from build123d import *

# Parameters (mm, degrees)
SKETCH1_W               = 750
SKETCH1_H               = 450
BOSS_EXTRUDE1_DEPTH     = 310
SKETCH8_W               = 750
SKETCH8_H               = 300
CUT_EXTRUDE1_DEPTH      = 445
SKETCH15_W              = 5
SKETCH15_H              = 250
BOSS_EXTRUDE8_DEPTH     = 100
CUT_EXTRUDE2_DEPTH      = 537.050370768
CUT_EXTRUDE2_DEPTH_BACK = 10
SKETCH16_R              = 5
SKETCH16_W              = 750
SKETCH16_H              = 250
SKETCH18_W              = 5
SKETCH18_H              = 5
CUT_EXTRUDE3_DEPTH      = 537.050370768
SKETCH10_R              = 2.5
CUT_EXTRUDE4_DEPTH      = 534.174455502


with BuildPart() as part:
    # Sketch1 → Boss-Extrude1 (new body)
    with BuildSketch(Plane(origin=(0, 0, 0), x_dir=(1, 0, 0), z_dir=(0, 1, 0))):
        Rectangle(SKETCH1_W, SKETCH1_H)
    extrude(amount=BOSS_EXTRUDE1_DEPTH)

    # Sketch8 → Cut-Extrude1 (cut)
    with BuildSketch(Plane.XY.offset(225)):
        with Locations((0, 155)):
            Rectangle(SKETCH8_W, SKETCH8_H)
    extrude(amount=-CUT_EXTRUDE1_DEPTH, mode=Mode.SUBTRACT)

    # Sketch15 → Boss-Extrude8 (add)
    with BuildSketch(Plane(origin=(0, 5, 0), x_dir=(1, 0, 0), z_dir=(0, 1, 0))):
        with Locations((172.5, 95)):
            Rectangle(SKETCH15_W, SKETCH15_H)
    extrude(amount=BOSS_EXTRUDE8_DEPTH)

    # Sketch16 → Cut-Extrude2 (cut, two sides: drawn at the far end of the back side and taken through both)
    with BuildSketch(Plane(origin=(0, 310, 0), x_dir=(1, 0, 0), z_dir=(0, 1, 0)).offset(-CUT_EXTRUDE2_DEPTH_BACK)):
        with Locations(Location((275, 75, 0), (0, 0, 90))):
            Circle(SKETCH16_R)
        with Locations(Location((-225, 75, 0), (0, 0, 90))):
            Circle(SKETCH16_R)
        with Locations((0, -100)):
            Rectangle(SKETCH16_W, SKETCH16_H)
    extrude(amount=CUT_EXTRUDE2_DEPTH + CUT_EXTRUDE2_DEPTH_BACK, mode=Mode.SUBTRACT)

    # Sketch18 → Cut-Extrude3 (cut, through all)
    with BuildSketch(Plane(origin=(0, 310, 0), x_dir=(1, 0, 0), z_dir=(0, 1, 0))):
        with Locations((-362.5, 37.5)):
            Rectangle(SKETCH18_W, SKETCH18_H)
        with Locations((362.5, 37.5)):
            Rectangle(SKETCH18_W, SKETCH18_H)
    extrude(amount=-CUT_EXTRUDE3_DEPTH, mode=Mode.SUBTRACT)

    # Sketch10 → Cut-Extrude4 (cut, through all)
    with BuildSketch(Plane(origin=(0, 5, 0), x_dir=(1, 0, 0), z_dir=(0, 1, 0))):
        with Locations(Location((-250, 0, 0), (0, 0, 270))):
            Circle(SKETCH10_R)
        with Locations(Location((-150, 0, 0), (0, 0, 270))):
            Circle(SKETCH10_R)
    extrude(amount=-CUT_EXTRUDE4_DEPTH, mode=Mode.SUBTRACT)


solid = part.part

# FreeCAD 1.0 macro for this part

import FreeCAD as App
import Part
import Sketcher
from FreeCAD import Vector

doc = App.newDocument("Part")
body = doc.addObject("PartDesign::Body", "Body")

# Sketch on XZ plane
sketch1 = body.newObject("Sketcher::SketchObject", "Sketch")
sketch1.AttachmentSupport = (doc.getObject("XZ_Plane"), [""])
sketch1.MapMode = "FlatFace"
sketch1.addGeometry(Part.LineSegment(Vector(-375, -225, 0), Vector(-375, 225, 0)), False)
sketch1.addGeometry(Part.LineSegment(Vector(-375, 225, 0), Vector(375, 225, 0)), False)
sketch1.addGeometry(Part.LineSegment(Vector(375, 225, 0), Vector(375, -225, 0)), False)
sketch1.addGeometry(Part.LineSegment(Vector(375, -225, 0), Vector(-375, -225, 0)), False)
sketch1.addConstraint(Sketcher.Constraint("Coincident", 0, 2, 1, 1))
sketch1.addConstraint(Sketcher.Constraint("Coincident", 1, 2, 2, 1))
sketch1.addConstraint(Sketcher.Constraint("Coincident", 2, 2, 3, 1))
sketch1.addConstraint(Sketcher.Constraint("Coincident", 3, 2, 0, 1))
sketch1.addConstraint(Sketcher.Constraint("Vertical", 0))
sketch1.addConstraint(Sketcher.Constraint("Horizontal", 1))
sketch1.addConstraint(Sketcher.Constraint("Vertical", 2))
sketch1.addConstraint(Sketcher.Constraint("Horizontal", 3))
sketch1.addConstraint(Sketcher.Constraint("Symmetric", 0, 2, 2, 2, -1, 1))
sketch1.addConstraint(Sketcher.Constraint("DistanceX", 1, 1, 1, 2, 750.0))
sketch1.addConstraint(Sketcher.Constraint("DistanceY", 0, 1, 0, 2, 450.0))
pad1 = body.newObject("PartDesign::Pad", "Pad")
pad1.Profile = sketch1
pad1.Length = 310
pad1.Reversed = True

# Sketch on XY plane
sketch2 = body.newObject("Sketcher::SketchObject", "Sketch001")
sketch2.AttachmentSupport = (doc.getObject("XY_Plane"), [""])
sketch2.MapMode = "FlatFace"
sketch2.AttachmentOffset = App.Placement(Vector(0, 0, 225), App.Rotation())
sketch2.addGeometry(Part.LineSegment(Vector(-375, 305, 0), Vector(-375, 5, 0)), False)
sketch2.addGeometry(Part.LineSegment(Vector(-375, 5, 0), Vector(375, 5, 0)), False)
sketch2.addGeometry(Part.LineSegment(Vector(375, 5, 0), Vector(375, 305, 0)), False)
sketch2.addGeometry(Part.LineSegment(Vector(375, 305, 0), Vector(-375, 305, 0)), False)
sketch2.addConstraint(Sketcher.Constraint("Coincident", 0, 2, 1, 1))
sketch2.addConstraint(Sketcher.Constraint("Coincident", 1, 2, 2, 1))
sketch2.addConstraint(Sketcher.Constraint("Coincident", 2, 2, 3, 1))
sketch2.addConstraint(Sketcher.Constraint("Coincident", 3, 2, 0, 1))
sketch2.addConstraint(Sketcher.Constraint("Vertical", 0))
sketch2.addConstraint(Sketcher.Constraint("Horizontal", 1))
sketch2.addConstraint(Sketcher.Constraint("Vertical", 2))
sketch2.addConstraint(Sketcher.Constraint("Horizontal", 3))
sketch2.addConstraint(Sketcher.Constraint("DistanceX", 1, 1, 1, 2, 750.0))
sketch2.addConstraint(Sketcher.Constraint("DistanceY", 0, 2, 0, 1, 300.0))
sketch2.addConstraint(Sketcher.Constraint("DistanceX", 0, 2, -1, 1, 375.0))
sketch2.addConstraint(Sketcher.Constraint("DistanceY", -1, 1, 0, 2, 5.0))
pocket1 = body.newObject("PartDesign::Pocket", "Pocket")
pocket1.Profile = sketch2
pocket1.Length = 445

# Sketch on XZ plane
sketch3 = body.newObject("Sketcher::SketchObject", "Sketch002")
sketch3.AttachmentSupport = (doc.getObject("XZ_Plane"), [""])
sketch3.MapMode = "FlatFace"
sketch3.AttachmentOffset = App.Placement(Vector(0, 0, -5), App.Rotation())
sketch3.addGeometry(Part.LineSegment(Vector(170, -220, 0), Vector(170, 30, 0)), False)
sketch3.addGeometry(Part.LineSegment(Vector(170, 30, 0), Vector(175, 30, 0)), False)
sketch3.addGeometry(Part.LineSegment(Vector(175, 30, 0), Vector(175, -220, 0)), False)
sketch3.addGeometry(Part.LineSegment(Vector(175, -220, 0), Vector(170, -220, 0)), False)
sketch3.addConstraint(Sketcher.Constraint("Coincident", 0, 2, 1, 1))
sketch3.addConstraint(Sketcher.Constraint("Coincident", 1, 2, 2, 1))
sketch3.addConstraint(Sketcher.Constraint("Coincident", 2, 2, 3, 1))
sketch3.addConstraint(Sketcher.Constraint("Coincident", 3, 2, 0, 1))
sketch3.addConstraint(Sketcher.Constraint("Vertical", 0))
sketch3.addConstraint(Sketcher.Constraint("Horizontal", 1))
sketch3.addConstraint(Sketcher.Constraint("Vertical", 2))
sketch3.addConstraint(Sketcher.Constraint("Horizontal", 3))
sketch3.addConstraint(Sketcher.Constraint("DistanceX", 1, 1, 1, 2, 5.0))
sketch3.addConstraint(Sketcher.Constraint("DistanceY", 0, 1, 0, 2, 250.0))
sketch3.addConstraint(Sketcher.Constraint("DistanceX", -1, 1, 0, 2, 170.0))
sketch3.addConstraint(Sketcher.Constraint("DistanceY", -1, 1, 0, 2, 30.0))
pad2 = body.newObject("PartDesign::Pad", "Pad001")
pad2.Profile = sketch3
pad2.Length = 100
pad2.Reversed = True

# Sketch on XZ plane
sketch4 = body.newObject("Sketcher::SketchObject", "Sketch003")
sketch4.AttachmentSupport = (doc.getObject("XZ_Plane"), [""])
sketch4.MapMode = "FlatFace"
sketch4.AttachmentOffset = App.Placement(Vector(0, 0, -310), App.Rotation())
sketch4.addGeometry(Part.Circle(Vector(275, -75, 0), Vector(0, 0, 1), 5), False)
sketch4.addGeometry(Part.Circle(Vector(-225, -75, 0), Vector(0, 0, 1), 5), False)
sketch4.addGeometry(Part.LineSegment(Vector(-375, -25, 0), Vector(-375, 225, 0)), False)
sketch4.addGeometry(Part.LineSegment(Vector(-375, 225, 0), Vector(375, 225, 0)), False)
sketch4.addGeometry(Part.LineSegment(Vector(375, 225, 0), Vector(375, -25, 0)), False)
sketch4.addGeometry(Part.LineSegment(Vector(375, -25, 0), Vector(-375, -25, 0)), False)
sketch4.addConstraint(Sketcher.Constraint("Coincident", 2, 2, 3, 1))
sketch4.addConstraint(Sketcher.Constraint("Coincident", 3, 2, 4, 1))
sketch4.addConstraint(Sketcher.Constraint("Coincident", 4, 2, 5, 1))
sketch4.addConstraint(Sketcher.Constraint("Coincident", 5, 2, 2, 1))
sketch4.addConstraint(Sketcher.Constraint("Vertical", 2))
sketch4.addConstraint(Sketcher.Constraint("Horizontal", 3))
sketch4.addConstraint(Sketcher.Constraint("Vertical", 4))
sketch4.addConstraint(Sketcher.Constraint("Horizontal", 5))
sketch4.addConstraint(Sketcher.Constraint("Equal", 0, 1))
sketch4.addConstraint(Sketcher.Constraint("Horizontal", 0, 3, 1, 3))
sketch4.addConstraint(Sketcher.Constraint("Diameter", 0, 10.0))
sketch4.addConstraint(Sketcher.Constraint("DistanceX", 3, 1, 3, 2, 750.0))
sketch4.addConstraint(Sketcher.Constraint("DistanceY", 2, 1, 2, 2, 250.0))
sketch4.addConstraint(Sketcher.Constraint("DistanceX", -1, 1, 0, 3, 275.0))
sketch4.addConstraint(Sketcher.Constraint("DistanceY", 0, 3, -1, 1, 75.0))
sketch4.addConstraint(Sketcher.Constraint("DistanceX", 1, 3, -1, 1, 225.0))
sketch4.addConstraint(Sketcher.Constraint("DistanceX", 2, 2, -1, 1, 375.0))
sketch4.addConstraint(Sketcher.Constraint("DistanceY", -1, 1, 2, 2, 225.0))
pocket2 = body.newObject("PartDesign::Pocket", "Pocket001")
pocket2.Profile = sketch4
pocket2.Type = "TwoLengths"
pocket2.Length = 537.050371
pocket2.Length2 = 10

# Sketch on XZ plane
sketch5 = body.newObject("Sketcher::SketchObject", "Sketch004")
sketch5.AttachmentSupport = (doc.getObject("XZ_Plane"), [""])
sketch5.MapMode = "FlatFace"
sketch5.AttachmentOffset = App.Placement(Vector(0, 0, -310), App.Rotation())
sketch5.addGeometry(Part.LineSegment(Vector(-365, -40, 0), Vector(-365, -35, 0)), False)
sketch5.addGeometry(Part.LineSegment(Vector(-365, -35, 0), Vector(-360, -35, 0)), False)
sketch5.addGeometry(Part.LineSegment(Vector(-360, -35, 0), Vector(-360, -40, 0)), False)
sketch5.addGeometry(Part.LineSegment(Vector(-360, -40, 0), Vector(-365, -40, 0)), False)
sketch5.addGeometry(Part.LineSegment(Vector(360, -40, 0), Vector(360, -35, 0)), False)
sketch5.addGeometry(Part.LineSegment(Vector(360, -35, 0), Vector(365, -35, 0)), False)
sketch5.addGeometry(Part.LineSegment(Vector(365, -35, 0), Vector(365, -40, 0)), False)
sketch5.addGeometry(Part.LineSegment(Vector(365, -40, 0), Vector(360, -40, 0)), False)
sketch5.addConstraint(Sketcher.Constraint("Coincident", 0, 2, 1, 1))
sketch5.addConstraint(Sketcher.Constraint("Coincident", 1, 2, 2, 1))
sketch5.addConstraint(Sketcher.Constraint("Coincident", 2, 2, 3, 1))
sketch5.addConstraint(Sketcher.Constraint("Coincident", 3, 2, 0, 1))
sketch5.addConstraint(Sketcher.Constraint("Coincident", 4, 2, 5, 1))
sketch5.addConstraint(Sketcher.Constraint("Coincident", 5, 2, 6, 1))
sketch5.addConstraint(Sketcher.Constraint("Coincident", 6, 2, 7, 1))
sketch5.addConstraint(Sketcher.Constraint("Coincident", 7, 2, 4, 1))
sketch5.addConstraint(Sketcher.Constraint("Vertical", 0))
sketch5.addConstraint(Sketcher.Constraint("Horizontal", 1))
sketch5.addConstraint(Sketcher.Constraint("Vertical", 2))
sketch5.addConstraint(Sketcher.Constraint("Horizontal", 3))
sketch5.addConstraint(Sketcher.Constraint("Vertical", 4))
sketch5.addConstraint(Sketcher.Constraint("Horizontal", 5))
sketch5.addConstraint(Sketcher.Constraint("Vertical", 6))
sketch5.addConstraint(Sketcher.Constraint("Horizontal", 7))
sketch5.addConstraint(Sketcher.Constraint("Symmetric", 1, 2, 4, 2, -2))
sketch5.addConstraint(Sketcher.Constraint("Symmetric", 3, 2, 6, 2, -2))
sketch5.addConstraint(Sketcher.Constraint("Equal", 7, 0))
sketch5.addConstraint(Sketcher.Constraint("DistanceX", 1, 1, 1, 2, 5.0))
sketch5.addConstraint(Sketcher.Constraint("DistanceX", 0, 2, -1, 1, 365.0))
sketch5.addConstraint(Sketcher.Constraint("DistanceY", 0, 2, -1, 1, 35.0))
pocket3 = body.newObject("PartDesign::Pocket", "Pocket002")
pocket3.Profile = sketch5
pocket3.Type = "ThroughAll"
pocket3.Reversed = True

# Sketch on XZ plane
sketch6 = body.newObject("Sketcher::SketchObject", "Sketch005")
sketch6.AttachmentSupport = (doc.getObject("XZ_Plane"), [""])
sketch6.MapMode = "FlatFace"
sketch6.AttachmentOffset = App.Placement(Vector(0, 0, -5), App.Rotation())
sketch6.addGeometry(Part.Circle(Vector(-250, 0, 0), Vector(0, 0, 1), 2.5), False)
sketch6.addGeometry(Part.Circle(Vector(-150, 0, 0), Vector(0, 0, 1), 2.5), False)
sketch6.addConstraint(Sketcher.Constraint("Equal", 0, 1))
sketch6.addConstraint(Sketcher.Constraint("PointOnObject", 0, 3, -1))
sketch6.addConstraint(Sketcher.Constraint("PointOnObject", 1, 3, -1))
sketch6.addConstraint(Sketcher.Constraint("Diameter", 0, 5.0))
sketch6.addConstraint(Sketcher.Constraint("DistanceX", 0, 3, -1, 1, 250.0))
sketch6.addConstraint(Sketcher.Constraint("DistanceX", 1, 3, -1, 1, 150.0))
pocket4 = body.newObject("PartDesign::Pocket", "Pocket003")
pocket4.Profile = sketch6
pocket4.Type = "ThroughAll"
pocket4.Reversed = True

doc.recompute()
